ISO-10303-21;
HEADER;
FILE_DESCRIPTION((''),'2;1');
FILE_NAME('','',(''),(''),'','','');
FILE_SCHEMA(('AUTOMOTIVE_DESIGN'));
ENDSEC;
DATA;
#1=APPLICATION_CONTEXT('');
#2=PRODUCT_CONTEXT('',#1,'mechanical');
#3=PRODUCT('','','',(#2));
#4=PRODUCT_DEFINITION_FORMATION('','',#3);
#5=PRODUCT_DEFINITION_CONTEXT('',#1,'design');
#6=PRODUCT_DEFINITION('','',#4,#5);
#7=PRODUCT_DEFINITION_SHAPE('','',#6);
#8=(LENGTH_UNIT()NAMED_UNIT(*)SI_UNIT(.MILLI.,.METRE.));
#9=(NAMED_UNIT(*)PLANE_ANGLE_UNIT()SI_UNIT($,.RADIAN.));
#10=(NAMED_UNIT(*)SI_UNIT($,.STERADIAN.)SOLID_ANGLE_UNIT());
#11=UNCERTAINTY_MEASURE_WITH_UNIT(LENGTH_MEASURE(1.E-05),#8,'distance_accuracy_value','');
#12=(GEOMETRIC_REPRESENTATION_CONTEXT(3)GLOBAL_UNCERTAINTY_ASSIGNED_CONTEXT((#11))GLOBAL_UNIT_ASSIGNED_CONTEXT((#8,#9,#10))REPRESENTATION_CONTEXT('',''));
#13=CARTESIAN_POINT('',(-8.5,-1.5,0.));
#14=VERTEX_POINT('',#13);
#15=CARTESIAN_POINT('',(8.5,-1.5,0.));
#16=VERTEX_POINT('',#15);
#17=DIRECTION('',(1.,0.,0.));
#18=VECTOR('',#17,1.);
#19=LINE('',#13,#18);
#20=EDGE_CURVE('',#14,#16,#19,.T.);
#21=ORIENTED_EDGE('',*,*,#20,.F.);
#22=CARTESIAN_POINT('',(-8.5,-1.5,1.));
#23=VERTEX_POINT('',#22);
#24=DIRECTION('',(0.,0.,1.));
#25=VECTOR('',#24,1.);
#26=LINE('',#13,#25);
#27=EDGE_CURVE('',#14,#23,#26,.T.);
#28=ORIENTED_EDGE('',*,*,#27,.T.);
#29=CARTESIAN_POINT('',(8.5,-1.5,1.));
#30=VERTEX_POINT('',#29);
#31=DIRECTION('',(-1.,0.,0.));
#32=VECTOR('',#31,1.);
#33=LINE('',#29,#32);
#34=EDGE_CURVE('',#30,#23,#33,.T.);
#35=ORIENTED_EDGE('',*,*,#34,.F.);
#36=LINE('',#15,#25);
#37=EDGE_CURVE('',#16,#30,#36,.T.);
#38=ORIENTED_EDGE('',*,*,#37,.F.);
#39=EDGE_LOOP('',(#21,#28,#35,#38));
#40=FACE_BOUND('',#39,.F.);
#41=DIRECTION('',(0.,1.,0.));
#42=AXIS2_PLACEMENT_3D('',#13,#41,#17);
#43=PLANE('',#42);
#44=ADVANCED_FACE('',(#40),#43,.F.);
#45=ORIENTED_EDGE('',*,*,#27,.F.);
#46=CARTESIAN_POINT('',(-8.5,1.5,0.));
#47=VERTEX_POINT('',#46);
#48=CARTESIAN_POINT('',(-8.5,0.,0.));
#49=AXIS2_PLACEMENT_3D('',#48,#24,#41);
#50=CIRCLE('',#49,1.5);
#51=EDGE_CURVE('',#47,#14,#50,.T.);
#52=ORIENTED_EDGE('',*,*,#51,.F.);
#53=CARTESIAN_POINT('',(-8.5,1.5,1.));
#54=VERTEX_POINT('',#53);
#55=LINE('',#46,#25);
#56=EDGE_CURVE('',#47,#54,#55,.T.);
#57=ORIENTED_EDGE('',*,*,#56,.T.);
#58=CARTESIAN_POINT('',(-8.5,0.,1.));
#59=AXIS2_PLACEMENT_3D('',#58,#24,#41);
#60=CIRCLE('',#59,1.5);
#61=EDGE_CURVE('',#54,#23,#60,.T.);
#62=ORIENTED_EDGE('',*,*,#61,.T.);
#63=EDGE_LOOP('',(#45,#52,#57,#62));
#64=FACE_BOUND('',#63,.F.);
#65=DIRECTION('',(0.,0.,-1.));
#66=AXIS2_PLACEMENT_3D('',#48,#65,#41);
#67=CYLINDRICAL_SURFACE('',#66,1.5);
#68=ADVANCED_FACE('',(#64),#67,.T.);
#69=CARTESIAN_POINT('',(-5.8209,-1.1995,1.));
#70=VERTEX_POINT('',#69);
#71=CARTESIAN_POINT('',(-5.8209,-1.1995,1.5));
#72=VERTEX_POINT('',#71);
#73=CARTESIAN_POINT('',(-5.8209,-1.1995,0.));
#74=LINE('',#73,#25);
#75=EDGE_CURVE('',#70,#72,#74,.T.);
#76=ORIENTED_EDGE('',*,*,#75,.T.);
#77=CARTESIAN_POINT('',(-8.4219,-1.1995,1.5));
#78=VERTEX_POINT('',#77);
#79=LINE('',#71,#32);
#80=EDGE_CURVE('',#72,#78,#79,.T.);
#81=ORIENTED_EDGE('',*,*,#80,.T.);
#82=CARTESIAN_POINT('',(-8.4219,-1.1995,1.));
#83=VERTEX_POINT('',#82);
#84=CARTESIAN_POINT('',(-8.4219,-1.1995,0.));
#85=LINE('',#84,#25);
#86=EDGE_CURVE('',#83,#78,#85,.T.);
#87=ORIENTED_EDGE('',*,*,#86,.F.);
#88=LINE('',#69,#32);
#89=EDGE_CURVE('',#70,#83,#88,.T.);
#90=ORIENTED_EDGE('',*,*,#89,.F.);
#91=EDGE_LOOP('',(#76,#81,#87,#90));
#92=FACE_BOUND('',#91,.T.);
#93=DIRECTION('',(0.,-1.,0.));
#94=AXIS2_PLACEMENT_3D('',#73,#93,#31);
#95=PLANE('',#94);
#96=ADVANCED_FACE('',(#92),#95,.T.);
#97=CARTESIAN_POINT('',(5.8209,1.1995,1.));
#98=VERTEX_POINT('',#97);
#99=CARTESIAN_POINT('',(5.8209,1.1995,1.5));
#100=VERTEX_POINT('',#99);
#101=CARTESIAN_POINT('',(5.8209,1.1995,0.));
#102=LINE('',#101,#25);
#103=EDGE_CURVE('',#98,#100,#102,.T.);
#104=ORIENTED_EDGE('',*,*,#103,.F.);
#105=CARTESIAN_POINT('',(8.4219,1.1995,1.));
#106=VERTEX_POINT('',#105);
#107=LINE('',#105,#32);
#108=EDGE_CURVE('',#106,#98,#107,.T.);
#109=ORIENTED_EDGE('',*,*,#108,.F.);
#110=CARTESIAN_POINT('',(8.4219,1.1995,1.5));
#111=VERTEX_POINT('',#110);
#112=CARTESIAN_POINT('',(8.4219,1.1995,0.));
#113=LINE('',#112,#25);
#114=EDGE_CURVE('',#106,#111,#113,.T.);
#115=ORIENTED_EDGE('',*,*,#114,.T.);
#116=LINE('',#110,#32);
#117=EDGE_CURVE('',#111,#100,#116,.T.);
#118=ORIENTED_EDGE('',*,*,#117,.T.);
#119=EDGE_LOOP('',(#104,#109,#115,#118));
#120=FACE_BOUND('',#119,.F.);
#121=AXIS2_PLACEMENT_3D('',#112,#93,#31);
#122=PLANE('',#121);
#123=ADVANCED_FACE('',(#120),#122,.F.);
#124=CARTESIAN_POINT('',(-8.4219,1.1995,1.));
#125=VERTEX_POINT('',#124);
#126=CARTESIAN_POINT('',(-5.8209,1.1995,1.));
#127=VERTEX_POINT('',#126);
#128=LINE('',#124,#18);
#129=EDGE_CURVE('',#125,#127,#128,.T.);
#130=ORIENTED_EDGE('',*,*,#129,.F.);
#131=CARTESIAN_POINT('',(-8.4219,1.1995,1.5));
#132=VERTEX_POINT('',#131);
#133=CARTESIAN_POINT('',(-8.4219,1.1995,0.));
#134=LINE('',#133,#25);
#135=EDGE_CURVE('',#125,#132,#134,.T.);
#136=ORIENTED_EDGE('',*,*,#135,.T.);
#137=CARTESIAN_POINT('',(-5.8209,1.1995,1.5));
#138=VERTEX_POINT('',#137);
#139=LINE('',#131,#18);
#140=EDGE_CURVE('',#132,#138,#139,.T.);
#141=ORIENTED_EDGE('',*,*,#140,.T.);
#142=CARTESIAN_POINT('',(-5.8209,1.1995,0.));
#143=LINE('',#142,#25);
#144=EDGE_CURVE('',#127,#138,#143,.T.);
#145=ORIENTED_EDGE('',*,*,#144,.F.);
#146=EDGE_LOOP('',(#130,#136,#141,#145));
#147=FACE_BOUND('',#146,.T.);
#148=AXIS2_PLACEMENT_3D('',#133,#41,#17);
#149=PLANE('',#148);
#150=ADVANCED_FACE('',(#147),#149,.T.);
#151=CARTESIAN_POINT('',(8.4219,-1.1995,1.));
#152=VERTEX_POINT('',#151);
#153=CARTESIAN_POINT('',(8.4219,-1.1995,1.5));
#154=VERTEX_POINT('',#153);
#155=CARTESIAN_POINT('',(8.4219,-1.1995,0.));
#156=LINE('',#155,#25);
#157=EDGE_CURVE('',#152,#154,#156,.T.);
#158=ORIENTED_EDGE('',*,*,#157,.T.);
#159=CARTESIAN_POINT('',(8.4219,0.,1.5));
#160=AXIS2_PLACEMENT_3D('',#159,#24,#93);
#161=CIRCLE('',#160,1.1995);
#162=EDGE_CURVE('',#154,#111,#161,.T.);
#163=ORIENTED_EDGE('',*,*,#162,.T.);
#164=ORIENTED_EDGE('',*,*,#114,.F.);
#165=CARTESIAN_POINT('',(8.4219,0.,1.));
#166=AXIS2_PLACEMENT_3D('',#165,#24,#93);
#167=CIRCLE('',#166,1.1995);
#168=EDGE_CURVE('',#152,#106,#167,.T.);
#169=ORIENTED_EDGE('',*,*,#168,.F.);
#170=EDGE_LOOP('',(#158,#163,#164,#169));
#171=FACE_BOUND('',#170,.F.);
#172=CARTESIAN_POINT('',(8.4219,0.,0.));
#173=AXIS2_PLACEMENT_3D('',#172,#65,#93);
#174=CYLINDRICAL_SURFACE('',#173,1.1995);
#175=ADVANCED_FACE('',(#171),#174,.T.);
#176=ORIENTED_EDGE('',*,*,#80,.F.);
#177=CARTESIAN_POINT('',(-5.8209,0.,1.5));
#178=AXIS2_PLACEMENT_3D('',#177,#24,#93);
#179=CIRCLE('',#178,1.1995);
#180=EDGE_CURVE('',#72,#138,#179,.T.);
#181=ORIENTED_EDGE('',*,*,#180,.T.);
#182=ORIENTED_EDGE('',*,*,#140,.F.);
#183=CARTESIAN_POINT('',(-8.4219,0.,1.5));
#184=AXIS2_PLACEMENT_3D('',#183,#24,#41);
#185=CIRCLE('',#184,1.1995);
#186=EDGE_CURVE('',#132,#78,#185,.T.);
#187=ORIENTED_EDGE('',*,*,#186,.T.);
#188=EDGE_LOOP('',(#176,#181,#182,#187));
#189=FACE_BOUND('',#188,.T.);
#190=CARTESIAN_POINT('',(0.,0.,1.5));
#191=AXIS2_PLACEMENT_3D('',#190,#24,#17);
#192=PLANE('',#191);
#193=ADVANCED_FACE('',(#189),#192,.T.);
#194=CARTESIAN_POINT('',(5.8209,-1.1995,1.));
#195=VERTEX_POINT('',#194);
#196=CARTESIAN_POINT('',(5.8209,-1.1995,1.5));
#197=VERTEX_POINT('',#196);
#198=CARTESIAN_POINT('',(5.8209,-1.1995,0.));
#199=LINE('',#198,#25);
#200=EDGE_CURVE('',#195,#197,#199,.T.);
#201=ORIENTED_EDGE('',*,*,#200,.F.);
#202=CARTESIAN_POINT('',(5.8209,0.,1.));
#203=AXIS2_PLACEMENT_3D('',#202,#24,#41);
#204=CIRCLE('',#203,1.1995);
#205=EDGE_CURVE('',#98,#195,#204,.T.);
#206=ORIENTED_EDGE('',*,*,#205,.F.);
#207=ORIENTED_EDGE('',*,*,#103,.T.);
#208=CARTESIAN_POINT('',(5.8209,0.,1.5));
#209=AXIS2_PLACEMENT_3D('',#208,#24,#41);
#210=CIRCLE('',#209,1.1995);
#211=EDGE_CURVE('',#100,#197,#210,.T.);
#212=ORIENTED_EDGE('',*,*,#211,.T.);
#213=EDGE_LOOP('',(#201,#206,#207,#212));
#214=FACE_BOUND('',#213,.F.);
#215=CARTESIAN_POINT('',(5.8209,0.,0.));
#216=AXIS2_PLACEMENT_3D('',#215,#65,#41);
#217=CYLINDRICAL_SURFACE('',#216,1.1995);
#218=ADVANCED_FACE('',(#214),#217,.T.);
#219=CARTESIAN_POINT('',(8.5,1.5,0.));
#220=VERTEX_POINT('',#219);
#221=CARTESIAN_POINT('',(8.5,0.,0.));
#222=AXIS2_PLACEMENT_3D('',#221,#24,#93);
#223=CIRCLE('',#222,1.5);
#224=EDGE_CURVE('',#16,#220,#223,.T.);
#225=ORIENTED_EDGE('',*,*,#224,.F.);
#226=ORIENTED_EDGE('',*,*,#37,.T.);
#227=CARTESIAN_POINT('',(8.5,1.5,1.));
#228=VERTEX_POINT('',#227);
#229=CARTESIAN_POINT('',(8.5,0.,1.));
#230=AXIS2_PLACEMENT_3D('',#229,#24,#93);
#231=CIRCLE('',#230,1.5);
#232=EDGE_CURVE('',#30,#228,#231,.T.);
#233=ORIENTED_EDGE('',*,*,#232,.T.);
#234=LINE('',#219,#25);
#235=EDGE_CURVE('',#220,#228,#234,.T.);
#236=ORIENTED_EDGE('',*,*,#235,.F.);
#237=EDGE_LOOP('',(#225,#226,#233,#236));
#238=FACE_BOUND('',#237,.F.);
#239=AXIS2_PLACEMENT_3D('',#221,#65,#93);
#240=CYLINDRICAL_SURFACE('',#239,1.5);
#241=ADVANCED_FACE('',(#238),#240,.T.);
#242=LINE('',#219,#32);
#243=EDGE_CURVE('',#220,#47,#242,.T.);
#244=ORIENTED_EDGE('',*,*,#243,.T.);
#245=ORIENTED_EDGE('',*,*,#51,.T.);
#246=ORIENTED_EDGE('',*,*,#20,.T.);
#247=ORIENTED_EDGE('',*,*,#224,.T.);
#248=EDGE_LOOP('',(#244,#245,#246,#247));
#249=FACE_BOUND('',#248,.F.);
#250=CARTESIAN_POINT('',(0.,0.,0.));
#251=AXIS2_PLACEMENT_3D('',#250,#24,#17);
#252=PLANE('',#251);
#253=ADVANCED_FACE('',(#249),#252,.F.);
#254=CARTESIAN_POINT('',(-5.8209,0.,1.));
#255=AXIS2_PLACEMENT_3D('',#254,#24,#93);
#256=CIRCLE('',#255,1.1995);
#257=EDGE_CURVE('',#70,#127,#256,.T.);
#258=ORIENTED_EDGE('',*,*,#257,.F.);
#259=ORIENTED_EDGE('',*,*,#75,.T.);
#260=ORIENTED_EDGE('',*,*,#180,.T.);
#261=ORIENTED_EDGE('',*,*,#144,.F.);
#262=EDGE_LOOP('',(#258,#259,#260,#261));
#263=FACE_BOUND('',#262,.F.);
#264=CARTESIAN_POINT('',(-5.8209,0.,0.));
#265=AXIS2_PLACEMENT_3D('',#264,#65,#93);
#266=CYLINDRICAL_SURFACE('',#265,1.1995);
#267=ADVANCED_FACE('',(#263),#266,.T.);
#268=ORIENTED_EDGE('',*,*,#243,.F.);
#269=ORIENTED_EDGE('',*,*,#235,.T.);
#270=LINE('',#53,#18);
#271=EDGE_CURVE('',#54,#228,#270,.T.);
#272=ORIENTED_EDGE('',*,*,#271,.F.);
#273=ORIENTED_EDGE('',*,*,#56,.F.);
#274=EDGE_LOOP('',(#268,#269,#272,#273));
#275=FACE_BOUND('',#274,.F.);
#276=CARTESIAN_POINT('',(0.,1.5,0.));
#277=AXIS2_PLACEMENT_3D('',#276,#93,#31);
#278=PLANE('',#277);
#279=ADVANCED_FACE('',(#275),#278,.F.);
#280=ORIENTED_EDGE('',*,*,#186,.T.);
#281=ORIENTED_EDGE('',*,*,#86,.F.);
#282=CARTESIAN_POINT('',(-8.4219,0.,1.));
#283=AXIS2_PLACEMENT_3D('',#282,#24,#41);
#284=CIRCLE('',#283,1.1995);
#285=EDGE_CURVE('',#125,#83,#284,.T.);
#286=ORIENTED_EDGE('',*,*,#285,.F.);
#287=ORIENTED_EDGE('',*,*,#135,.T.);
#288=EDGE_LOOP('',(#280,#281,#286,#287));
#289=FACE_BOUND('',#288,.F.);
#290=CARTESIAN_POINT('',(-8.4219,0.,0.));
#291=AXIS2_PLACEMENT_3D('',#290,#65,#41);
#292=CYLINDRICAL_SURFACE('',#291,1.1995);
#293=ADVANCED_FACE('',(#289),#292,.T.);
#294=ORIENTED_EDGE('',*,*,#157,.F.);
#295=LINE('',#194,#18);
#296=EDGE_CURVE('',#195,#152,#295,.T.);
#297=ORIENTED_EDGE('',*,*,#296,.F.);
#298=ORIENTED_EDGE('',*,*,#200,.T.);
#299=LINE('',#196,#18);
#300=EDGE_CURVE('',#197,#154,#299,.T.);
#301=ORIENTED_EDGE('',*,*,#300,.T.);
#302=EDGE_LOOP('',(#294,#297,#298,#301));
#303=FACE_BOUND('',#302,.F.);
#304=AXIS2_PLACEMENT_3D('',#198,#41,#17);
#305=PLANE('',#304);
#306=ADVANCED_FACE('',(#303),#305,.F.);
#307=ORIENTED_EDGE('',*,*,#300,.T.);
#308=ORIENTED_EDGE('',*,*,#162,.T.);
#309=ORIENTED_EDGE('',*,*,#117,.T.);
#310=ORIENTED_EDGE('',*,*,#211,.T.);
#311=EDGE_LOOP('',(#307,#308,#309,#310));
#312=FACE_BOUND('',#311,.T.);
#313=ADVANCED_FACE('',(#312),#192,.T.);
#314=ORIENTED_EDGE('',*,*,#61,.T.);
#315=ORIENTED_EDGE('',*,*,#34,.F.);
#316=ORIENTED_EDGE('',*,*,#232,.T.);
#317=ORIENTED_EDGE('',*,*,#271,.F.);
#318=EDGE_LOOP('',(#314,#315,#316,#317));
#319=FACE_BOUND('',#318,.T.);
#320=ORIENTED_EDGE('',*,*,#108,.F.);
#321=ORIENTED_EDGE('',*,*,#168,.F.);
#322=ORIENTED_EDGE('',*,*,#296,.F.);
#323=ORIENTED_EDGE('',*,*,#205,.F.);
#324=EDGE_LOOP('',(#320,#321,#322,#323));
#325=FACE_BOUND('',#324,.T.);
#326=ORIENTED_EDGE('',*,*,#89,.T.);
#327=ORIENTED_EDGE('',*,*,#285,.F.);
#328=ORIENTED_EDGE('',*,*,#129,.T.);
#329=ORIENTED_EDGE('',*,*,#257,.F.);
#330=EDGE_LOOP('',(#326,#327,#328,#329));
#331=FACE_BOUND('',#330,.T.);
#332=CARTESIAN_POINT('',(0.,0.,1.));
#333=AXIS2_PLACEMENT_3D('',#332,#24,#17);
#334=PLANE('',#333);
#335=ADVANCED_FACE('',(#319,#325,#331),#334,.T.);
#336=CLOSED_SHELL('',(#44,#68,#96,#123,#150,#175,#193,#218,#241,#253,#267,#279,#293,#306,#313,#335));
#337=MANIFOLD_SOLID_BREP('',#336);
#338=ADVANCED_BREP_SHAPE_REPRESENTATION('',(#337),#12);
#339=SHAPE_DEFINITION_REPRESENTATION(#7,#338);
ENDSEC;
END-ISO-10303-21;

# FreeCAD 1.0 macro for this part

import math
import FreeCAD as App
import Part
import Sketcher
from FreeCAD import Vector
Q = App.Units.Quantity

doc = App.newDocument("Part")
params = doc.addObject("Spreadsheet::Sheet", "Params")
for row, (alias, value) in enumerate([
    ("sketch1_radius", "1.5 mm"),
    ("sketch1_width", "17 mm"),
    ("pad1_length", "1 mm"),
    ("pad2_length", "1.5 mm"),
], start=1):
    params.set(f"A{row}", alias)
    params.set(f"B{row}", "=" + value)
    params.setAlias(f"B{row}", alias)

body = doc.addObject("PartDesign::Body", "Body")

# Sketch on XY plane
sketch1 = body.newObject("Sketcher::SketchObject", "Sketch")
sketch1.AttachmentSupport = (doc.getObject("XY_Plane"), [""])
sketch1.MapMode = "FlatFace"
sketch1.addGeometry([
    Part.ArcOfCircle(Part.Circle(Vector(-8.5, 0, 0), Vector(0, 0, 1), 1.5), math.radians(90), math.radians(270)),  # 0
    Part.LineSegment(Vector(-8.5, -1.5, 0), Vector(8.5, -1.5, 0)),  # 1
    Part.ArcOfCircle(Part.Circle(Vector(8.5, 0, 0), Vector(0, 0, 1), 1.5), math.radians(-90), math.radians(90)),  # 2
    Part.LineSegment(Vector(8.5, 1.5, 0), Vector(-8.5, 1.5, 0)),  # 3
    Part.ArcOfCircle(Part.Circle(Vector(-5.8209, 0, 0), Vector(0, 0, 1), 1.1995), math.radians(-90), math.radians(90)),  # 4
    Part.LineSegment(Vector(-5.8209, -1.1995, 0), Vector(-8.4219, -1.1995, 0)),  # 5
    Part.ArcOfCircle(Part.Circle(Vector(-8.4219, 0, 0), Vector(0, 0, 1), 1.1995), math.radians(90), math.radians(270)),  # 6
    Part.LineSegment(Vector(-8.4219, 1.1995, 0), Vector(-5.8209, 1.1995, 0)),  # 7
    Part.ArcOfCircle(Part.Circle(Vector(5.8209, 0, 0), Vector(0, 0, 1), 1.1995), math.radians(90), math.radians(270)),  # 8
    Part.LineSegment(Vector(5.8209, 1.1995, 0), Vector(8.4219, 1.1995, 0)),  # 9
    Part.ArcOfCircle(Part.Circle(Vector(8.4219, 0, 0), Vector(0, 0, 1), 1.1995), math.radians(-90), math.radians(90)),  # 10
    Part.LineSegment(Vector(8.4219, -1.1995, 0), Vector(5.8209, -1.1995, 0)),  # 11
], False)
sketch1.addConstraint([
    Sketcher.Constraint("Tangent", 0, 2, 1, 1),
    Sketcher.Constraint("Tangent", 1, 2, 2, 1),
    Sketcher.Constraint("Tangent", 2, 2, 3, 1),
    Sketcher.Constraint("Tangent", 3, 2, 0, 1),
    Sketcher.Constraint("Tangent", 4, 1, 5, 1),
    Sketcher.Constraint("Tangent", 5, 2, 6, 2),
    Sketcher.Constraint("Tangent", 6, 1, 7, 1),
    Sketcher.Constraint("Tangent", 7, 2, 4, 2),
    Sketcher.Constraint("Tangent", 8, 1, 9, 1),
    Sketcher.Constraint("Tangent", 9, 2, 10, 2),
    Sketcher.Constraint("Tangent", 10, 1, 11, 1),
    Sketcher.Constraint("Tangent", 11, 2, 8, 2),
    Sketcher.Constraint("Horizontal", 1),
    Sketcher.Constraint("Horizontal", 3),
    Sketcher.Constraint("Horizontal", 5),
    Sketcher.Constraint("Horizontal", 7),
    Sketcher.Constraint("Horizontal", 9),
    Sketcher.Constraint("Horizontal", 11),
    Sketcher.Constraint("Equal", 6, 8),
    Sketcher.Constraint("Symmetric", 0, 3, 2, 3, -1, 1),
    Sketcher.Constraint("Symmetric", 4, 3, 8, 3, -1, 1),
    Sketcher.Constraint("Symmetric", 6, 3, 10, 3, -2),
    Sketcher.Constraint("Radius", 0, Q("1.5 mm")),
    Sketcher.Constraint("DistanceX", 1, 1, 1, 2, Q("17 mm")),
    Sketcher.Constraint("Radius", 4, Q("1.1995 mm")),
    Sketcher.Constraint("DistanceX", 5, 2, 5, 1, Q("2.601 mm")),
    Sketcher.Constraint("DistanceX", 4, 3, -1, 1, Q("5.821 mm")),
])
sketch1.setExpression("Constraints[22]", "Params.sketch1_radius")
sketch1.setExpression("Constraints[23]", "Params.sketch1_width")
pad1 = body.newObject("PartDesign::Pad", "Pad")
pad1.Profile = sketch1
pad1.setExpression("Length", "Params.pad1_length")

# Sketch on XY plane
sketch2 = body.newObject("Sketcher::SketchObject", "Sketch001")
sketch2.AttachmentSupport = (doc.getObject("XY_Plane"), [""])
sketch2.MapMode = "FlatFace"
sketch2.addGeometry([
    Part.ArcOfCircle(Part.Circle(Vector(5.8209, 0, 0), Vector(0, 0, 1), 1.1995), math.radians(90), math.radians(270)),  # 0
    Part.LineSegment(Vector(5.8209, -1.1995, 0), Vector(8.4219, -1.1995, 0)),  # 1
    Part.ArcOfCircle(Part.Circle(Vector(8.4219, 0, 0), Vector(0, 0, 1), 1.1995), math.radians(-90), math.radians(90)),  # 2
    Part.LineSegment(Vector(8.4219, 1.1995, 0), Vector(5.8209, 1.1995, 0)),  # 3
    Part.LineSegment(Vector(-8.4219, -1.1995, 0), Vector(-5.8209, -1.1995, 0)),  # 4
    Part.ArcOfCircle(Part.Circle(Vector(-5.8209, 0, 0), Vector(0, 0, 1), 1.1995), math.radians(-90), math.radians(90)),  # 5
    Part.LineSegment(Vector(-5.8209, 1.1995, 0), Vector(-8.4219, 1.1995, 0)),  # 6
    Part.ArcOfCircle(Part.Circle(Vector(-8.4219, 0, 0), Vector(0, 0, 1), 1.1995), math.radians(90), math.radians(270)),  # 7
], False)
sketch2.addConstraint([
    Sketcher.Constraint("Tangent", 0, 2, 1, 1),
    Sketcher.Constraint("Tangent", 1, 2, 2, 1),
    Sketcher.Constraint("Tangent", 2, 2, 3, 1),
    Sketcher.Constraint("Tangent", 3, 2, 0, 1),
    Sketcher.Constraint("Tangent", 4, 2, 5, 1),
    Sketcher.Constraint("Tangent", 5, 2, 6, 1),
    Sketcher.Constraint("Tangent", 6, 2, 7, 1),
    Sketcher.Constraint("Tangent", 7, 2, 4, 1),
    Sketcher.Constraint("Horizontal", 1),
    Sketcher.Constraint("Horizontal", 3),
    Sketcher.Constraint("Horizontal", 4),
    Sketcher.Constraint("Horizontal", 6),
    Sketcher.Constraint("Equal", 2, 5),
    Sketcher.Constraint("Symmetric", 0, 3, 5, 3, -1, 1),
    Sketcher.Constraint("Symmetric", 2, 3, 7, 3, -2),
    Sketcher.Constraint("Radius", 0, Q("1.1995 mm")),
    Sketcher.Constraint("DistanceX", 1, 1, 1, 2, Q("2.601 mm")),
    Sketcher.Constraint("DistanceX", -1, 1, 0, 3, Q("5.821 mm")),
])
pad2 = body.newObject("PartDesign::Pad", "Pad001")
pad2.Profile = sketch2
pad2.setExpression("Length", "Params.pad2_length")

doc.recompute()
